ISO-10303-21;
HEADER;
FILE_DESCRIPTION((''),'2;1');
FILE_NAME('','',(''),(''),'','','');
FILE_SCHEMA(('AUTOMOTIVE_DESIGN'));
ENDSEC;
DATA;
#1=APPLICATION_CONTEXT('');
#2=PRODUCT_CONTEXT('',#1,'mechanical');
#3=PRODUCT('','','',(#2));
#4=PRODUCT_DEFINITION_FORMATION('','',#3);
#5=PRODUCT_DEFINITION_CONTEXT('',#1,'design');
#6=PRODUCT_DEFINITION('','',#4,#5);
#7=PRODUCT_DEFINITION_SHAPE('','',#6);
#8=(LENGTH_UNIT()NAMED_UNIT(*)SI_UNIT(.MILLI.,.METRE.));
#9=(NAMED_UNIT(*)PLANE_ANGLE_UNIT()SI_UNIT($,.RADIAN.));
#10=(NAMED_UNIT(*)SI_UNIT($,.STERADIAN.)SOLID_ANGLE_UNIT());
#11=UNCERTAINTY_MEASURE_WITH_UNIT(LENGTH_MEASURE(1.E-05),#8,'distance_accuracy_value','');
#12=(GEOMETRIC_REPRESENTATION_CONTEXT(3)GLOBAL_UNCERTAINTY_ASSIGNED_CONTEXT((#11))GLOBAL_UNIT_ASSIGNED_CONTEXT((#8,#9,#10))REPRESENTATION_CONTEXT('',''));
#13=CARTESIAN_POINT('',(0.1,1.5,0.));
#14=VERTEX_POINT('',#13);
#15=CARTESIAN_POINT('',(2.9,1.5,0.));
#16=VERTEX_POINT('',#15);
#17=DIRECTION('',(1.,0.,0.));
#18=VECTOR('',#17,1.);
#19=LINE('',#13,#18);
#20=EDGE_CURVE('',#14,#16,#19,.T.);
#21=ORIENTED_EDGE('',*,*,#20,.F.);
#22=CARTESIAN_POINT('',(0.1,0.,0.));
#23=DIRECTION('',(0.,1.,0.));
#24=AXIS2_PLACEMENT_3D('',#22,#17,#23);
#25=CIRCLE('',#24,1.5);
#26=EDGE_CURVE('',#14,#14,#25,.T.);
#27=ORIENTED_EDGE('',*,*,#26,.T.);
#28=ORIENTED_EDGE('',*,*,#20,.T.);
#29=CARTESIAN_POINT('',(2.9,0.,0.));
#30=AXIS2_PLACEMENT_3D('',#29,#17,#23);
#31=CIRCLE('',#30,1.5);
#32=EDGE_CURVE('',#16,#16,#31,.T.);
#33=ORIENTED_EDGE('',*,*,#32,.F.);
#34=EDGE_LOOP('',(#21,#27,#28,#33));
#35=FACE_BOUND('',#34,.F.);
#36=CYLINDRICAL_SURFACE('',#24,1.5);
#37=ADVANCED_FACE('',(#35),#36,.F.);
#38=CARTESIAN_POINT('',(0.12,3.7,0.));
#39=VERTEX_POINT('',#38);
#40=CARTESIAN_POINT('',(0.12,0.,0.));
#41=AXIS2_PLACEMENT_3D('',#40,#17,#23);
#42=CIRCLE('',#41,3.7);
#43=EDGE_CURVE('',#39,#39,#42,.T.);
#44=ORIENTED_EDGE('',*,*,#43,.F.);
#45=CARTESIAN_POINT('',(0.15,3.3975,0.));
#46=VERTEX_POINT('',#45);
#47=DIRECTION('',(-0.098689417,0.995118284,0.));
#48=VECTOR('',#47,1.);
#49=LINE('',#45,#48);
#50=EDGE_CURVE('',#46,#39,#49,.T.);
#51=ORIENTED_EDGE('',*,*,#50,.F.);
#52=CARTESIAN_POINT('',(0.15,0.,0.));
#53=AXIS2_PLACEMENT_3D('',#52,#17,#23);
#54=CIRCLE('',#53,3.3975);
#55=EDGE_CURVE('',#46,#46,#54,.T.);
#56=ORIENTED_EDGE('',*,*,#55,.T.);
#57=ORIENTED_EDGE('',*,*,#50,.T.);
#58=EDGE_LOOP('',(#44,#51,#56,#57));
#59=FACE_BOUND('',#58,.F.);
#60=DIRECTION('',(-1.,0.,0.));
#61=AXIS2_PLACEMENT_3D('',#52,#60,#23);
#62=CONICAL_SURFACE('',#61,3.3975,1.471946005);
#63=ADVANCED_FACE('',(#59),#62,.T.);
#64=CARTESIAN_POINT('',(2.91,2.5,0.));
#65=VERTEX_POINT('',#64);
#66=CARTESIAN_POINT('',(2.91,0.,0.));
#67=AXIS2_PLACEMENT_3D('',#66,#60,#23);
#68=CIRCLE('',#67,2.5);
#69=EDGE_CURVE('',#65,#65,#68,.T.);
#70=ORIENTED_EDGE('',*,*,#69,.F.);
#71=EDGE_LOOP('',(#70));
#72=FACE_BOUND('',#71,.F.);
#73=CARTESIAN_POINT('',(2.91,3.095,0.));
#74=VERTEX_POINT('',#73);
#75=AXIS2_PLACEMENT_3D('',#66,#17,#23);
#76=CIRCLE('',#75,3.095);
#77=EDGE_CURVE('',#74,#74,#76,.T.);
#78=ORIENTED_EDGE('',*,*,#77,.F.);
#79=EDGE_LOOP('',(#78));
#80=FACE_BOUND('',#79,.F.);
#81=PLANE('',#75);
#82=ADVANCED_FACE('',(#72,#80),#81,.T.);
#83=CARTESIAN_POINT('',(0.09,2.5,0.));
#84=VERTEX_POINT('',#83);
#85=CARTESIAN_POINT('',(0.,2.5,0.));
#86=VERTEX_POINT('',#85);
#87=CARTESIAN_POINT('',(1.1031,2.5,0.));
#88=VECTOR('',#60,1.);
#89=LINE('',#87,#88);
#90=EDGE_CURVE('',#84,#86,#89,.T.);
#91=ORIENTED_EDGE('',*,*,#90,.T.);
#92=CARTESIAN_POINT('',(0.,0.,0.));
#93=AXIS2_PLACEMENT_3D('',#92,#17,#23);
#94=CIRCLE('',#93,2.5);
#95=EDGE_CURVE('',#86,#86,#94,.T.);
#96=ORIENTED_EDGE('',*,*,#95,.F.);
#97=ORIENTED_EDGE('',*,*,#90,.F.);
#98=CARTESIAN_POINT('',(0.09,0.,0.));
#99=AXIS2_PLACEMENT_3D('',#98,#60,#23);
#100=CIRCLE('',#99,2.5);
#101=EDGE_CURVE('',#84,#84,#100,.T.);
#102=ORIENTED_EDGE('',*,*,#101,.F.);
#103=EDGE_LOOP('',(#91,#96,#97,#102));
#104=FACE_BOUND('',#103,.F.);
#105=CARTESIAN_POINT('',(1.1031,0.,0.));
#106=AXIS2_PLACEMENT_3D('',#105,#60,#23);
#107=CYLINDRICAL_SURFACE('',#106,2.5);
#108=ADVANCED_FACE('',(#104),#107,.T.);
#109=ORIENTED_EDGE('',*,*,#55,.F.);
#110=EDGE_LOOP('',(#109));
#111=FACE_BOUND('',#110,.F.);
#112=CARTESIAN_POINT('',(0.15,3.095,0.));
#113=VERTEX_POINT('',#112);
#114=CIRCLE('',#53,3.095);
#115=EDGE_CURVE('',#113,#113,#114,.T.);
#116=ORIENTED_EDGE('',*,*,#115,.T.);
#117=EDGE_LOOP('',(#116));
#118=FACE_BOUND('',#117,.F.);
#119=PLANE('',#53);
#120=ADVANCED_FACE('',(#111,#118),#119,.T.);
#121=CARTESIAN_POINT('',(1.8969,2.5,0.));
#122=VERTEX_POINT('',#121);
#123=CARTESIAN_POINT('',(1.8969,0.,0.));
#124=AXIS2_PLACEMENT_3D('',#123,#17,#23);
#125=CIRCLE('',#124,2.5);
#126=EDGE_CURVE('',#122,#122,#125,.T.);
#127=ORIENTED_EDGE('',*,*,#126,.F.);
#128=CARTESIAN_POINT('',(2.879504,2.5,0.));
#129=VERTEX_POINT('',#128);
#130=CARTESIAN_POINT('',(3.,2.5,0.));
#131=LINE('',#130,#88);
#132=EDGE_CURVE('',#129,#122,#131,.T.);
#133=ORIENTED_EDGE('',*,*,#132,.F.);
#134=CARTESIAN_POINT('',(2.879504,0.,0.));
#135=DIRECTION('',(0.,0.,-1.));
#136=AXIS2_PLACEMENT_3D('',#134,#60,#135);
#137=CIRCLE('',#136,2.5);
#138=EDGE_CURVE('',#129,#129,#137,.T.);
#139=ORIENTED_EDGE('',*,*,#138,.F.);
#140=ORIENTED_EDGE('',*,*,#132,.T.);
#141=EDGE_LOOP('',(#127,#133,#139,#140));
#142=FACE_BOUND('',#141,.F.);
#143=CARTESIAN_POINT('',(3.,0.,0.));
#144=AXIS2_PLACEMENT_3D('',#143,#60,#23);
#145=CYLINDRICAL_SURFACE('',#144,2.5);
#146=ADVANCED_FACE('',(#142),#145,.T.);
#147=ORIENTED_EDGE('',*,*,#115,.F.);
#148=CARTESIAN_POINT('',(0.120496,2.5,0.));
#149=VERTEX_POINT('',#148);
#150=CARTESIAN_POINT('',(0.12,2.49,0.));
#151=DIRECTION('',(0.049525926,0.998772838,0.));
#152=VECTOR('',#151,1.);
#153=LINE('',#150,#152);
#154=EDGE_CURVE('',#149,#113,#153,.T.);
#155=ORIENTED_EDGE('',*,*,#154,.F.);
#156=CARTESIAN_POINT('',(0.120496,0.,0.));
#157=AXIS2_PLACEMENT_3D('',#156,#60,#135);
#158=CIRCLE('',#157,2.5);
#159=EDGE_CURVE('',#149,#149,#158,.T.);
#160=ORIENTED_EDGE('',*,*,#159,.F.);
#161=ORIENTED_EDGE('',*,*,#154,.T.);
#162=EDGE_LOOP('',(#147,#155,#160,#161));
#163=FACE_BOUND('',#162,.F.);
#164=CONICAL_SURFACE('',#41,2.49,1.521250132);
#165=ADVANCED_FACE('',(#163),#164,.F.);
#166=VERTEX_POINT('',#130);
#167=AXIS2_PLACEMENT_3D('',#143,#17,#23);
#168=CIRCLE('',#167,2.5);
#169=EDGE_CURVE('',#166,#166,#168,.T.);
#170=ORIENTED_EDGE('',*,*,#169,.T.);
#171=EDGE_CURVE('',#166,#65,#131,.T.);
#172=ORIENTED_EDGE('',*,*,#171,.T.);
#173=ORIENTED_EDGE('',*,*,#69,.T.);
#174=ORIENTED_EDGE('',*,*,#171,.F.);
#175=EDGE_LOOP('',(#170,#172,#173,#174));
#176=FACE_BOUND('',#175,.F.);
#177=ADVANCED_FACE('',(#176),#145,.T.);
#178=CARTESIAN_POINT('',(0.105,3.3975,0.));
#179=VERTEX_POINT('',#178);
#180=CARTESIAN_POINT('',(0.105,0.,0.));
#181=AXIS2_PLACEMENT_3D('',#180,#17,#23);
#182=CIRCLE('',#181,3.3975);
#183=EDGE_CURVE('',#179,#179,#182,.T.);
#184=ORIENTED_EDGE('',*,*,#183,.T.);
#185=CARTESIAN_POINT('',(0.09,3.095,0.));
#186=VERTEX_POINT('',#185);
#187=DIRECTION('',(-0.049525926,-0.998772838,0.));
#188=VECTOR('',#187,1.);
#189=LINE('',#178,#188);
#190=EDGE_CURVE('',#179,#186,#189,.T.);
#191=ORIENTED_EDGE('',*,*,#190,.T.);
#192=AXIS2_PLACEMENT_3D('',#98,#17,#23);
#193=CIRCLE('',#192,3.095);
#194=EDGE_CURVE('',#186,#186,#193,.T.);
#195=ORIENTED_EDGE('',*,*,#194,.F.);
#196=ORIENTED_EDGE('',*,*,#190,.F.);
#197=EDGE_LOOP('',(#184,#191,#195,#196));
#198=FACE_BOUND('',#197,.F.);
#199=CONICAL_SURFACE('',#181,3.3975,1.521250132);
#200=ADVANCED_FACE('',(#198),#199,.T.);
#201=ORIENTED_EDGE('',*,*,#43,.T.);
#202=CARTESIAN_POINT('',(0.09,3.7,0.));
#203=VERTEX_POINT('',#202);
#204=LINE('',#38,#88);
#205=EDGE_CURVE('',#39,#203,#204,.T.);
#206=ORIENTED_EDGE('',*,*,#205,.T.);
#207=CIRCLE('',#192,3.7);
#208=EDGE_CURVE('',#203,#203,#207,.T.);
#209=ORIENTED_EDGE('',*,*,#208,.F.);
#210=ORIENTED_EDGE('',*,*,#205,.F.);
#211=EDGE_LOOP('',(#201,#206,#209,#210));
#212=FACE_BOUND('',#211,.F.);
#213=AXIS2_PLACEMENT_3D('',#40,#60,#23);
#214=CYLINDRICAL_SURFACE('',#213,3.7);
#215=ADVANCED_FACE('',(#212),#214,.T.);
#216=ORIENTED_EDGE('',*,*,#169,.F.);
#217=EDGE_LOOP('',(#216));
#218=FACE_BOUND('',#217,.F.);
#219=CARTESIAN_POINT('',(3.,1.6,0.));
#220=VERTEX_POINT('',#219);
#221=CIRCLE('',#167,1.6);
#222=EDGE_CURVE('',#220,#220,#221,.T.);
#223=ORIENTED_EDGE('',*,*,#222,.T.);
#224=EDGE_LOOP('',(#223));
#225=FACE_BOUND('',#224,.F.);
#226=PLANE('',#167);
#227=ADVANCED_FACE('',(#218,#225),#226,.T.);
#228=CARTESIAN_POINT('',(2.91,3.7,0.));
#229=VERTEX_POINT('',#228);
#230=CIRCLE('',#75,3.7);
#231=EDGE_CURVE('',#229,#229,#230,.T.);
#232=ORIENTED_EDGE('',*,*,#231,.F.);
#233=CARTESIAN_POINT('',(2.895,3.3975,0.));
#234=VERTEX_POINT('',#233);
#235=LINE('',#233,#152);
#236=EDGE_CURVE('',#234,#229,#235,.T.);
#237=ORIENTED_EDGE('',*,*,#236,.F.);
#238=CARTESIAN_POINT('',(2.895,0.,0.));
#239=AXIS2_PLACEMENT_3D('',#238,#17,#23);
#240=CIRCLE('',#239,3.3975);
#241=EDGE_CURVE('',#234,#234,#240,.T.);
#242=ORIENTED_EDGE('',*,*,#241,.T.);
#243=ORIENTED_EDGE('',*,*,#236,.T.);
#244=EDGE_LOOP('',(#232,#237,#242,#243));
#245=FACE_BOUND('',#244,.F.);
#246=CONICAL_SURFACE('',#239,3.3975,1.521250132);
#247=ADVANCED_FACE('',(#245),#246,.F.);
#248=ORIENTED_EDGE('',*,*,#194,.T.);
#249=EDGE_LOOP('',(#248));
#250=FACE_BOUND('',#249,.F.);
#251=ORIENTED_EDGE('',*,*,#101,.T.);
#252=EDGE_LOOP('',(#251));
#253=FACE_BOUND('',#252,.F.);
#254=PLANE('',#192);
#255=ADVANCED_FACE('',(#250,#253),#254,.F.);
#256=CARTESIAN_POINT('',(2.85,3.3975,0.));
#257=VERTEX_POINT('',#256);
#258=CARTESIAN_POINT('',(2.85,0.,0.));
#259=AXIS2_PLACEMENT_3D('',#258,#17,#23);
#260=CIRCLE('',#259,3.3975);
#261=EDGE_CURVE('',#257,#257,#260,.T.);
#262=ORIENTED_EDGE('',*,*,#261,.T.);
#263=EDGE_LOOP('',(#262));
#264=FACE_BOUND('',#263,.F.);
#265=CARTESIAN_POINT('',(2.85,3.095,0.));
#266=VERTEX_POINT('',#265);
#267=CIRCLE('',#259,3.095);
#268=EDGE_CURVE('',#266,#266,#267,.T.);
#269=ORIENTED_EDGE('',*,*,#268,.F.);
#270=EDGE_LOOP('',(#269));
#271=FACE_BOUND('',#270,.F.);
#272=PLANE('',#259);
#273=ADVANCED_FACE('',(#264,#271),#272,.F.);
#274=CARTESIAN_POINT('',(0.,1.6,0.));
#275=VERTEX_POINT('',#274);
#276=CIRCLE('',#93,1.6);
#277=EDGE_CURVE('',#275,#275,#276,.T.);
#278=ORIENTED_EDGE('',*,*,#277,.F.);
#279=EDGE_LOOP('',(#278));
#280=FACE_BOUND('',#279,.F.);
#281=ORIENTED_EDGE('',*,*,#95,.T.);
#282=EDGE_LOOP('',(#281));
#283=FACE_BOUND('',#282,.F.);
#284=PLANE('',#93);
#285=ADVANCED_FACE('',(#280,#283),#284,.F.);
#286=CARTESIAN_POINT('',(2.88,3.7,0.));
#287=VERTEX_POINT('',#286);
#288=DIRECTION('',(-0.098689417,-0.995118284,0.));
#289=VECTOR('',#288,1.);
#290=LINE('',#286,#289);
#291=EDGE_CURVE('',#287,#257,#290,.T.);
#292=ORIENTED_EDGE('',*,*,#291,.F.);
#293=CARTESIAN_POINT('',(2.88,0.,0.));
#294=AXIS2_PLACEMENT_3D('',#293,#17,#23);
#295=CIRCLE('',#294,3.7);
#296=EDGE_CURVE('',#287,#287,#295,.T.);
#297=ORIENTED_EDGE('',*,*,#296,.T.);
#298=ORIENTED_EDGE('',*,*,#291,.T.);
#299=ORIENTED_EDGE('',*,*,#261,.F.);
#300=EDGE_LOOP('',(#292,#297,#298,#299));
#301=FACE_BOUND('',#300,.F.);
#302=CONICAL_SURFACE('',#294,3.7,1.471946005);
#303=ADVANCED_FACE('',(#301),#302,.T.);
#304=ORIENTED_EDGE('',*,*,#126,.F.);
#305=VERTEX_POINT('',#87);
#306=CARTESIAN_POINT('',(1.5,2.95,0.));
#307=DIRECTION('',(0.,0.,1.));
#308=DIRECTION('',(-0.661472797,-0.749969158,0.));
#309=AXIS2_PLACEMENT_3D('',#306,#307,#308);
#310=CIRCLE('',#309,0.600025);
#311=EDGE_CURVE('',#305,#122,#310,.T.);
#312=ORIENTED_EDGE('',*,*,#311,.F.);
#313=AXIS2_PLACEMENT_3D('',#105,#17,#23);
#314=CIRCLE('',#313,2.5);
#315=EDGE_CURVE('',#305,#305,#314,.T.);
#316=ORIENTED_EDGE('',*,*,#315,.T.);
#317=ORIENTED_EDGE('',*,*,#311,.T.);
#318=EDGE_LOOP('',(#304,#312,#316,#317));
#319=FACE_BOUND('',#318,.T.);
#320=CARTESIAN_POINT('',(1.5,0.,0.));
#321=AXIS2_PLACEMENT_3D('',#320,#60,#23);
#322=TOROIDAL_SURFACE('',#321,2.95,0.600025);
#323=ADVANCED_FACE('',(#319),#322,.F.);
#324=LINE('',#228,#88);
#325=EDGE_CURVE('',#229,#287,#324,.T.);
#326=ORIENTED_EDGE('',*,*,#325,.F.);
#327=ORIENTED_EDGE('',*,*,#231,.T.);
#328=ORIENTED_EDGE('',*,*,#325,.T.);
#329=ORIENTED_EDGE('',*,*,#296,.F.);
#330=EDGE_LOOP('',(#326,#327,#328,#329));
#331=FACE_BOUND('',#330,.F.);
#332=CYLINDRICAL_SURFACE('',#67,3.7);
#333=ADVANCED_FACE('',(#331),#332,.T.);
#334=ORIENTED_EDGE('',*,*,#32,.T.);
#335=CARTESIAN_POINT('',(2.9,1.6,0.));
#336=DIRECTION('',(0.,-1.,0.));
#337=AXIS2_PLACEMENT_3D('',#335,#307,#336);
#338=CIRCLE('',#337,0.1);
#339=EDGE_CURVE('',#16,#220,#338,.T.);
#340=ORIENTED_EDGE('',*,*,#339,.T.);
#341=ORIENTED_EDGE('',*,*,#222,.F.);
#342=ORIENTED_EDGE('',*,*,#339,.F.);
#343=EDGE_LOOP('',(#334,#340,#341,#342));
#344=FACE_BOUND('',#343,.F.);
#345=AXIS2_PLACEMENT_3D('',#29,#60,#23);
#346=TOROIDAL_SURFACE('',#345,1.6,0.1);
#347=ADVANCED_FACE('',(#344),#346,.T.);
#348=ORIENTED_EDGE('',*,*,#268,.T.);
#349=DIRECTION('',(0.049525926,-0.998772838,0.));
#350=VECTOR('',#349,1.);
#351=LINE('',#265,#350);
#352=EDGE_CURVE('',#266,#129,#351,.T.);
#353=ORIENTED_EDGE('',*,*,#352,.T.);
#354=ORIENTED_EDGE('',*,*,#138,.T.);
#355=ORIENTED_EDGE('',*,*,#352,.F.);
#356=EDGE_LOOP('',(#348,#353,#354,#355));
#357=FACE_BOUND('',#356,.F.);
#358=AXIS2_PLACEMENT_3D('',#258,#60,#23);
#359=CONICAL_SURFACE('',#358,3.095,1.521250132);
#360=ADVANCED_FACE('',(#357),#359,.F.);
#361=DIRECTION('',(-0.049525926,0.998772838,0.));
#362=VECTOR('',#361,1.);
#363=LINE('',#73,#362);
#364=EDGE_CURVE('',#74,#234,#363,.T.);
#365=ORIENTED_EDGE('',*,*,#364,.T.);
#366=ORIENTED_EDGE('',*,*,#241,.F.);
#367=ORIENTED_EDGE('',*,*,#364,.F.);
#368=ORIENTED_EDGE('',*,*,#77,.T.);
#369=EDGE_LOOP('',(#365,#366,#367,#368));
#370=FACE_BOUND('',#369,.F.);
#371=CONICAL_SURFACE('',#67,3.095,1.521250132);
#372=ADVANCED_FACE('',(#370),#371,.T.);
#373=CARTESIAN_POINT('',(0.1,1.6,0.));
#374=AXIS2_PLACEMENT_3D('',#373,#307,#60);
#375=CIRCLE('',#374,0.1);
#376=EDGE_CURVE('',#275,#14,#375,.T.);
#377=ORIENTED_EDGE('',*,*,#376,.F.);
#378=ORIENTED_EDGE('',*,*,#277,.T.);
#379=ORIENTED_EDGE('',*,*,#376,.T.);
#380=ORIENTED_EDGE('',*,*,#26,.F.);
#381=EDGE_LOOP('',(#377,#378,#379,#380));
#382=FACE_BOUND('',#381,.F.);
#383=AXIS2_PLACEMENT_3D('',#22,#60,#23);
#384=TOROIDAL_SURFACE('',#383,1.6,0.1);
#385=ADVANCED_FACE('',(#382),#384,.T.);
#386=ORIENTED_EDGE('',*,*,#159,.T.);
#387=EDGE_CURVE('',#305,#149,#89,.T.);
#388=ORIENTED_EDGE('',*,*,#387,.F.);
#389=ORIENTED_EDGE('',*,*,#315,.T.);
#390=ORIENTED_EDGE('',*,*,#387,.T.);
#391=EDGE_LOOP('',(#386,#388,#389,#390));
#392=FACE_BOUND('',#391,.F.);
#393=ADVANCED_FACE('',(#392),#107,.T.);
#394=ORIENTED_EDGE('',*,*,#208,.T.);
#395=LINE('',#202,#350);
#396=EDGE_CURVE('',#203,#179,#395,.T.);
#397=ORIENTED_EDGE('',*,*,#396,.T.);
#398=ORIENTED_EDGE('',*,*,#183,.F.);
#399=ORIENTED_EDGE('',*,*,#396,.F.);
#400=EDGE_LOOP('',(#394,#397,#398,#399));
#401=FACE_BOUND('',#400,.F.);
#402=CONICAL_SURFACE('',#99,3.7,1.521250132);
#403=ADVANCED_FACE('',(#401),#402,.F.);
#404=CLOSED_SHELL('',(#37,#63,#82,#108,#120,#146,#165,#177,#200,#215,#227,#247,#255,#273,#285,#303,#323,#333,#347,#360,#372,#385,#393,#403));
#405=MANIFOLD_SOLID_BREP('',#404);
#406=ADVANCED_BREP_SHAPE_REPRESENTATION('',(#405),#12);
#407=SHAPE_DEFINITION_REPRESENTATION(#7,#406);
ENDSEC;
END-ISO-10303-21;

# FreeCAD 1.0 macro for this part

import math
import FreeCAD as App
import Part
import Sketcher
from FreeCAD import Vector

doc = App.newDocument("Part")
body = doc.addObject("PartDesign::Body", "Body")

sketch1 = body.newObject("Sketcher::SketchObject", "Sketch")
sketch1.AttachmentSupport = (doc.getObject("XY_Plane"), [""])
sketch1.MapMode = "FlatFace"
sketch1.addGeometry([
    Part.LineSegment(Vector(0, 2.5, 0), Vector(0, 1.6, 0)),
    Part.ArcOfCircle(Part.Circle(Vector(0.1, 1.6, 0), Vector(0, 0, 1), 0.1), math.radians(180), math.radians(270)),
    Part.LineSegment(Vector(0.1, 1.5, 0), Vector(2.9, 1.5, 0)),
    Part.ArcOfCircle(Part.Circle(Vector(2.9, 1.6, 0), Vector(0, 0, 1), 0.1), math.radians(-90), math.radians(0)),
    Part.LineSegment(Vector(3, 1.6, 0), Vector(3, 2.5, 0)),
    Part.LineSegment(Vector(3, 2.5, 0), Vector(1.9, 2.5, 0)),
    Part.ArcOfCircle(Part.Circle(Vector(1.5, 2.95, 0), Vector(0, 0, 1), 0.6), math.radians(-131), math.radians(-49)),
    Part.LineSegment(Vector(1.1, 2.5, 0), Vector(0, 2.5, 0)),
], False)
sketch1.addConstraint([
    Sketcher.Constraint("Tangent", 0, 2, 1, 1),
    Sketcher.Constraint("Tangent", 1, 2, 2, 1),
    Sketcher.Constraint("Tangent", 2, 2, 3, 1),
    Sketcher.Constraint("Tangent", 3, 2, 4, 1),
    Sketcher.Constraint("Coincident", 4, 2, 5, 1),
    Sketcher.Constraint("Coincident", 5, 2, 6, 2),
    Sketcher.Constraint("Coincident", 6, 1, 7, 1),
    Sketcher.Constraint("Coincident", 7, 2, 0, 1),
    Sketcher.Constraint("Vertical", 0),
    Sketcher.Constraint("Horizontal", 2),
    Sketcher.Constraint("Vertical", 4),
    Sketcher.Constraint("Horizontal", 5),
    Sketcher.Constraint("Horizontal", 7),
    Sketcher.Constraint("Equal", 1, 3),
    Sketcher.Constraint("PointOnObject", 0, 2, -2),
    Sketcher.Constraint("Horizontal", 5, 2, 6, 1),
    Sketcher.Constraint("Equal", 5, 7),
    Sketcher.Constraint("Radius", 1, 0.1),
    Sketcher.Constraint("Radius", 6, 0.6),
    Sketcher.Constraint("DistanceX", 2, 1, 2, 2, 2.8),
    Sketcher.Constraint("DistanceY", 0, 2, 0, 1, 0.9),
    Sketcher.Constraint("DistanceY", -1, 1, 1, 3, 1.6),
    Sketcher.Constraint("DistanceX", 5, 2, 5, 1, 1.103),
])
revolution = body.newObject("PartDesign::Revolution", "Revolution")
revolution.Profile = sketch1
revolution.ReferenceAxis = (sketch1, ["H_Axis"])
revolution.Angle = 360

sketch2 = body.newObject("Sketcher::SketchObject", "Sketch001")
sketch2.AttachmentSupport = (doc.getObject("XY_Plane"), [""])
sketch2.MapMode = "FlatFace"
sketch2.addGeometry([
    Part.LineSegment(Vector(0.12, 3.7, 0), Vector(0.09, 3.7, 0)),
    Part.LineSegment(Vector(0.09, 3.7, 0), Vector(0.105, 3.397, 0)),
    Part.LineSegment(Vector(0.105, 3.397, 0), Vector(0.09, 3.095, 0)),
    Part.LineSegment(Vector(0.09, 3.095, 0), Vector(0.09, 2.49, 0)),
    Part.LineSegment(Vector(0.09, 2.49, 0), Vector(0.12, 2.49, 0)),
    Part.LineSegment(Vector(0.12, 2.49, 0), Vector(0.15, 3.095, 0)),
    Part.LineSegment(Vector(0.15, 3.095, 0), Vector(0.15, 3.397, 0)),
    Part.LineSegment(Vector(0.15, 3.397, 0), Vector(0.12, 3.7, 0)),
], False)
sketch2.addConstraint([
    Sketcher.Constraint("Coincident", 0, 2, 1, 1),
    Sketcher.Constraint("Coincident", 1, 2, 2, 1),
    Sketcher.Constraint("Coincident", 2, 2, 3, 1),
    Sketcher.Constraint("Coincident", 3, 2, 4, 1),
    Sketcher.Constraint("Coincident", 4, 2, 5, 1),
    Sketcher.Constraint("Coincident", 5, 2, 6, 1),
    Sketcher.Constraint("Coincident", 6, 2, 7, 1),
    Sketcher.Constraint("Coincident", 7, 2, 0, 1),
    Sketcher.Constraint("Horizontal", 0),
    Sketcher.Constraint("Vertical", 3),
    Sketcher.Constraint("Horizontal", 4),
    Sketcher.Constraint("Vertical", 6),
    Sketcher.Constraint("Parallel", 2, 5),
    Sketcher.Constraint("Horizontal", 2, 2, 5, 2),
    Sketcher.Constraint("Horizontal", 1, 2, 6, 2),
    Sketcher.Constraint("Vertical", 0, 2, 2, 2),
    Sketcher.Constraint("Vertical", 4, 2, 7, 2),
    Sketcher.Constraint("Equal", 1, 2),
    Sketcher.Constraint("DistanceX", 0, 2, 0, 1, 0.03),
    Sketcher.Constraint("DistanceY", -1, 1, 0, 2, 3.7),
    Sketcher.Constraint("DistanceY", 3, 2, 3, 1, 0.605),
    Sketcher.Constraint("DistanceX", -1, 1, 0, 2, 0.09),
    Sketcher.Constraint("DistanceY", -1, 1, 3, 2, 2.49),
    Sketcher.Constraint("DistanceX", -1, 1, 5, 2, 0.15),
])
revolution2 = body.newObject("PartDesign::Revolution", "Revolution001")
revolution2.Profile = sketch2
revolution2.ReferenceAxis = (sketch2, ["H_Axis"])
revolution2.Angle = 360

sketch3 = body.newObject("Sketcher::SketchObject", "Sketch002")
sketch3.AttachmentSupport = (doc.getObject("XY_Plane"), [""])
sketch3.MapMode = "FlatFace"
sketch3.addGeometry([
    Part.LineSegment(Vector(2.88, 3.7, 0), Vector(2.85, 3.397, 0)),
    Part.LineSegment(Vector(2.85, 3.397, 0), Vector(2.85, 3.095, 0)),
    Part.LineSegment(Vector(2.85, 3.095, 0), Vector(2.88, 2.49, 0)),
    Part.LineSegment(Vector(2.88, 2.49, 0), Vector(2.91, 2.49, 0)),
    Part.LineSegment(Vector(2.91, 2.49, 0), Vector(2.91, 3.095, 0)),
    Part.LineSegment(Vector(2.91, 3.095, 0), Vector(2.895, 3.397, 0)),
    Part.LineSegment(Vector(2.895, 3.397, 0), Vector(2.91, 3.7, 0)),
    Part.LineSegment(Vector(2.91, 3.7, 0), Vector(2.88, 3.7, 0)),
], False)
sketch3.addConstraint([
    Sketcher.Constraint("Coincident", 0, 2, 1, 1),
    Sketcher.Constraint("Coincident", 1, 2, 2, 1),
    Sketcher.Constraint("Coincident", 2, 2, 3, 1),
    Sketcher.Constraint("Coincident", 3, 2, 4, 1),
    Sketcher.Constraint("Coincident", 4, 2, 5, 1),
    Sketcher.Constraint("Coincident", 5, 2, 6, 1),
    Sketcher.Constraint("Coincident", 6, 2, 7, 1),
    Sketcher.Constraint("Coincident", 7, 2, 0, 1),
    Sketcher.Constraint("Vertical", 1),
    Sketcher.Constraint("Horizontal", 3),
    Sketcher.Constraint("Vertical", 4),
    Sketcher.Constraint("Horizontal", 7),
    Sketcher.Constraint("Parallel", 2, 5),
    Sketcher.Constraint("Horizontal", 1, 2, 4, 2),
    Sketcher.Constraint("Horizontal", 0, 2, 5, 2),
    Sketcher.Constraint("Vertical", 4, 2, 6, 2),
    Sketcher.Constraint("Vertical", 2, 2, 7, 2),
    Sketcher.Constraint("Equal", 5, 6),
    Sketcher.Constraint("DistanceX", 3, 1, 3, 2, 0.03),
    Sketcher.Constraint("DistanceY", -1, 1, 6, 2, 3.7),
    Sketcher.Constraint("DistanceY", 4, 1, 4, 2, 0.605),
    Sketcher.Constraint("DistanceX", -1, 1, 0, 2, 2.85),
    Sketcher.Constraint("DistanceX", -1, 1, 2, 2, 2.88),
    Sketcher.Constraint("DistanceY", -1, 1, 2, 2, 2.49),
])
revolution3 = body.newObject("PartDesign::Revolution", "Revolution002")
revolution3.Profile = sketch3
revolution3.ReferenceAxis = (sketch3, ["H_Axis"])
revolution3.Angle = 360

doc.recompute()
